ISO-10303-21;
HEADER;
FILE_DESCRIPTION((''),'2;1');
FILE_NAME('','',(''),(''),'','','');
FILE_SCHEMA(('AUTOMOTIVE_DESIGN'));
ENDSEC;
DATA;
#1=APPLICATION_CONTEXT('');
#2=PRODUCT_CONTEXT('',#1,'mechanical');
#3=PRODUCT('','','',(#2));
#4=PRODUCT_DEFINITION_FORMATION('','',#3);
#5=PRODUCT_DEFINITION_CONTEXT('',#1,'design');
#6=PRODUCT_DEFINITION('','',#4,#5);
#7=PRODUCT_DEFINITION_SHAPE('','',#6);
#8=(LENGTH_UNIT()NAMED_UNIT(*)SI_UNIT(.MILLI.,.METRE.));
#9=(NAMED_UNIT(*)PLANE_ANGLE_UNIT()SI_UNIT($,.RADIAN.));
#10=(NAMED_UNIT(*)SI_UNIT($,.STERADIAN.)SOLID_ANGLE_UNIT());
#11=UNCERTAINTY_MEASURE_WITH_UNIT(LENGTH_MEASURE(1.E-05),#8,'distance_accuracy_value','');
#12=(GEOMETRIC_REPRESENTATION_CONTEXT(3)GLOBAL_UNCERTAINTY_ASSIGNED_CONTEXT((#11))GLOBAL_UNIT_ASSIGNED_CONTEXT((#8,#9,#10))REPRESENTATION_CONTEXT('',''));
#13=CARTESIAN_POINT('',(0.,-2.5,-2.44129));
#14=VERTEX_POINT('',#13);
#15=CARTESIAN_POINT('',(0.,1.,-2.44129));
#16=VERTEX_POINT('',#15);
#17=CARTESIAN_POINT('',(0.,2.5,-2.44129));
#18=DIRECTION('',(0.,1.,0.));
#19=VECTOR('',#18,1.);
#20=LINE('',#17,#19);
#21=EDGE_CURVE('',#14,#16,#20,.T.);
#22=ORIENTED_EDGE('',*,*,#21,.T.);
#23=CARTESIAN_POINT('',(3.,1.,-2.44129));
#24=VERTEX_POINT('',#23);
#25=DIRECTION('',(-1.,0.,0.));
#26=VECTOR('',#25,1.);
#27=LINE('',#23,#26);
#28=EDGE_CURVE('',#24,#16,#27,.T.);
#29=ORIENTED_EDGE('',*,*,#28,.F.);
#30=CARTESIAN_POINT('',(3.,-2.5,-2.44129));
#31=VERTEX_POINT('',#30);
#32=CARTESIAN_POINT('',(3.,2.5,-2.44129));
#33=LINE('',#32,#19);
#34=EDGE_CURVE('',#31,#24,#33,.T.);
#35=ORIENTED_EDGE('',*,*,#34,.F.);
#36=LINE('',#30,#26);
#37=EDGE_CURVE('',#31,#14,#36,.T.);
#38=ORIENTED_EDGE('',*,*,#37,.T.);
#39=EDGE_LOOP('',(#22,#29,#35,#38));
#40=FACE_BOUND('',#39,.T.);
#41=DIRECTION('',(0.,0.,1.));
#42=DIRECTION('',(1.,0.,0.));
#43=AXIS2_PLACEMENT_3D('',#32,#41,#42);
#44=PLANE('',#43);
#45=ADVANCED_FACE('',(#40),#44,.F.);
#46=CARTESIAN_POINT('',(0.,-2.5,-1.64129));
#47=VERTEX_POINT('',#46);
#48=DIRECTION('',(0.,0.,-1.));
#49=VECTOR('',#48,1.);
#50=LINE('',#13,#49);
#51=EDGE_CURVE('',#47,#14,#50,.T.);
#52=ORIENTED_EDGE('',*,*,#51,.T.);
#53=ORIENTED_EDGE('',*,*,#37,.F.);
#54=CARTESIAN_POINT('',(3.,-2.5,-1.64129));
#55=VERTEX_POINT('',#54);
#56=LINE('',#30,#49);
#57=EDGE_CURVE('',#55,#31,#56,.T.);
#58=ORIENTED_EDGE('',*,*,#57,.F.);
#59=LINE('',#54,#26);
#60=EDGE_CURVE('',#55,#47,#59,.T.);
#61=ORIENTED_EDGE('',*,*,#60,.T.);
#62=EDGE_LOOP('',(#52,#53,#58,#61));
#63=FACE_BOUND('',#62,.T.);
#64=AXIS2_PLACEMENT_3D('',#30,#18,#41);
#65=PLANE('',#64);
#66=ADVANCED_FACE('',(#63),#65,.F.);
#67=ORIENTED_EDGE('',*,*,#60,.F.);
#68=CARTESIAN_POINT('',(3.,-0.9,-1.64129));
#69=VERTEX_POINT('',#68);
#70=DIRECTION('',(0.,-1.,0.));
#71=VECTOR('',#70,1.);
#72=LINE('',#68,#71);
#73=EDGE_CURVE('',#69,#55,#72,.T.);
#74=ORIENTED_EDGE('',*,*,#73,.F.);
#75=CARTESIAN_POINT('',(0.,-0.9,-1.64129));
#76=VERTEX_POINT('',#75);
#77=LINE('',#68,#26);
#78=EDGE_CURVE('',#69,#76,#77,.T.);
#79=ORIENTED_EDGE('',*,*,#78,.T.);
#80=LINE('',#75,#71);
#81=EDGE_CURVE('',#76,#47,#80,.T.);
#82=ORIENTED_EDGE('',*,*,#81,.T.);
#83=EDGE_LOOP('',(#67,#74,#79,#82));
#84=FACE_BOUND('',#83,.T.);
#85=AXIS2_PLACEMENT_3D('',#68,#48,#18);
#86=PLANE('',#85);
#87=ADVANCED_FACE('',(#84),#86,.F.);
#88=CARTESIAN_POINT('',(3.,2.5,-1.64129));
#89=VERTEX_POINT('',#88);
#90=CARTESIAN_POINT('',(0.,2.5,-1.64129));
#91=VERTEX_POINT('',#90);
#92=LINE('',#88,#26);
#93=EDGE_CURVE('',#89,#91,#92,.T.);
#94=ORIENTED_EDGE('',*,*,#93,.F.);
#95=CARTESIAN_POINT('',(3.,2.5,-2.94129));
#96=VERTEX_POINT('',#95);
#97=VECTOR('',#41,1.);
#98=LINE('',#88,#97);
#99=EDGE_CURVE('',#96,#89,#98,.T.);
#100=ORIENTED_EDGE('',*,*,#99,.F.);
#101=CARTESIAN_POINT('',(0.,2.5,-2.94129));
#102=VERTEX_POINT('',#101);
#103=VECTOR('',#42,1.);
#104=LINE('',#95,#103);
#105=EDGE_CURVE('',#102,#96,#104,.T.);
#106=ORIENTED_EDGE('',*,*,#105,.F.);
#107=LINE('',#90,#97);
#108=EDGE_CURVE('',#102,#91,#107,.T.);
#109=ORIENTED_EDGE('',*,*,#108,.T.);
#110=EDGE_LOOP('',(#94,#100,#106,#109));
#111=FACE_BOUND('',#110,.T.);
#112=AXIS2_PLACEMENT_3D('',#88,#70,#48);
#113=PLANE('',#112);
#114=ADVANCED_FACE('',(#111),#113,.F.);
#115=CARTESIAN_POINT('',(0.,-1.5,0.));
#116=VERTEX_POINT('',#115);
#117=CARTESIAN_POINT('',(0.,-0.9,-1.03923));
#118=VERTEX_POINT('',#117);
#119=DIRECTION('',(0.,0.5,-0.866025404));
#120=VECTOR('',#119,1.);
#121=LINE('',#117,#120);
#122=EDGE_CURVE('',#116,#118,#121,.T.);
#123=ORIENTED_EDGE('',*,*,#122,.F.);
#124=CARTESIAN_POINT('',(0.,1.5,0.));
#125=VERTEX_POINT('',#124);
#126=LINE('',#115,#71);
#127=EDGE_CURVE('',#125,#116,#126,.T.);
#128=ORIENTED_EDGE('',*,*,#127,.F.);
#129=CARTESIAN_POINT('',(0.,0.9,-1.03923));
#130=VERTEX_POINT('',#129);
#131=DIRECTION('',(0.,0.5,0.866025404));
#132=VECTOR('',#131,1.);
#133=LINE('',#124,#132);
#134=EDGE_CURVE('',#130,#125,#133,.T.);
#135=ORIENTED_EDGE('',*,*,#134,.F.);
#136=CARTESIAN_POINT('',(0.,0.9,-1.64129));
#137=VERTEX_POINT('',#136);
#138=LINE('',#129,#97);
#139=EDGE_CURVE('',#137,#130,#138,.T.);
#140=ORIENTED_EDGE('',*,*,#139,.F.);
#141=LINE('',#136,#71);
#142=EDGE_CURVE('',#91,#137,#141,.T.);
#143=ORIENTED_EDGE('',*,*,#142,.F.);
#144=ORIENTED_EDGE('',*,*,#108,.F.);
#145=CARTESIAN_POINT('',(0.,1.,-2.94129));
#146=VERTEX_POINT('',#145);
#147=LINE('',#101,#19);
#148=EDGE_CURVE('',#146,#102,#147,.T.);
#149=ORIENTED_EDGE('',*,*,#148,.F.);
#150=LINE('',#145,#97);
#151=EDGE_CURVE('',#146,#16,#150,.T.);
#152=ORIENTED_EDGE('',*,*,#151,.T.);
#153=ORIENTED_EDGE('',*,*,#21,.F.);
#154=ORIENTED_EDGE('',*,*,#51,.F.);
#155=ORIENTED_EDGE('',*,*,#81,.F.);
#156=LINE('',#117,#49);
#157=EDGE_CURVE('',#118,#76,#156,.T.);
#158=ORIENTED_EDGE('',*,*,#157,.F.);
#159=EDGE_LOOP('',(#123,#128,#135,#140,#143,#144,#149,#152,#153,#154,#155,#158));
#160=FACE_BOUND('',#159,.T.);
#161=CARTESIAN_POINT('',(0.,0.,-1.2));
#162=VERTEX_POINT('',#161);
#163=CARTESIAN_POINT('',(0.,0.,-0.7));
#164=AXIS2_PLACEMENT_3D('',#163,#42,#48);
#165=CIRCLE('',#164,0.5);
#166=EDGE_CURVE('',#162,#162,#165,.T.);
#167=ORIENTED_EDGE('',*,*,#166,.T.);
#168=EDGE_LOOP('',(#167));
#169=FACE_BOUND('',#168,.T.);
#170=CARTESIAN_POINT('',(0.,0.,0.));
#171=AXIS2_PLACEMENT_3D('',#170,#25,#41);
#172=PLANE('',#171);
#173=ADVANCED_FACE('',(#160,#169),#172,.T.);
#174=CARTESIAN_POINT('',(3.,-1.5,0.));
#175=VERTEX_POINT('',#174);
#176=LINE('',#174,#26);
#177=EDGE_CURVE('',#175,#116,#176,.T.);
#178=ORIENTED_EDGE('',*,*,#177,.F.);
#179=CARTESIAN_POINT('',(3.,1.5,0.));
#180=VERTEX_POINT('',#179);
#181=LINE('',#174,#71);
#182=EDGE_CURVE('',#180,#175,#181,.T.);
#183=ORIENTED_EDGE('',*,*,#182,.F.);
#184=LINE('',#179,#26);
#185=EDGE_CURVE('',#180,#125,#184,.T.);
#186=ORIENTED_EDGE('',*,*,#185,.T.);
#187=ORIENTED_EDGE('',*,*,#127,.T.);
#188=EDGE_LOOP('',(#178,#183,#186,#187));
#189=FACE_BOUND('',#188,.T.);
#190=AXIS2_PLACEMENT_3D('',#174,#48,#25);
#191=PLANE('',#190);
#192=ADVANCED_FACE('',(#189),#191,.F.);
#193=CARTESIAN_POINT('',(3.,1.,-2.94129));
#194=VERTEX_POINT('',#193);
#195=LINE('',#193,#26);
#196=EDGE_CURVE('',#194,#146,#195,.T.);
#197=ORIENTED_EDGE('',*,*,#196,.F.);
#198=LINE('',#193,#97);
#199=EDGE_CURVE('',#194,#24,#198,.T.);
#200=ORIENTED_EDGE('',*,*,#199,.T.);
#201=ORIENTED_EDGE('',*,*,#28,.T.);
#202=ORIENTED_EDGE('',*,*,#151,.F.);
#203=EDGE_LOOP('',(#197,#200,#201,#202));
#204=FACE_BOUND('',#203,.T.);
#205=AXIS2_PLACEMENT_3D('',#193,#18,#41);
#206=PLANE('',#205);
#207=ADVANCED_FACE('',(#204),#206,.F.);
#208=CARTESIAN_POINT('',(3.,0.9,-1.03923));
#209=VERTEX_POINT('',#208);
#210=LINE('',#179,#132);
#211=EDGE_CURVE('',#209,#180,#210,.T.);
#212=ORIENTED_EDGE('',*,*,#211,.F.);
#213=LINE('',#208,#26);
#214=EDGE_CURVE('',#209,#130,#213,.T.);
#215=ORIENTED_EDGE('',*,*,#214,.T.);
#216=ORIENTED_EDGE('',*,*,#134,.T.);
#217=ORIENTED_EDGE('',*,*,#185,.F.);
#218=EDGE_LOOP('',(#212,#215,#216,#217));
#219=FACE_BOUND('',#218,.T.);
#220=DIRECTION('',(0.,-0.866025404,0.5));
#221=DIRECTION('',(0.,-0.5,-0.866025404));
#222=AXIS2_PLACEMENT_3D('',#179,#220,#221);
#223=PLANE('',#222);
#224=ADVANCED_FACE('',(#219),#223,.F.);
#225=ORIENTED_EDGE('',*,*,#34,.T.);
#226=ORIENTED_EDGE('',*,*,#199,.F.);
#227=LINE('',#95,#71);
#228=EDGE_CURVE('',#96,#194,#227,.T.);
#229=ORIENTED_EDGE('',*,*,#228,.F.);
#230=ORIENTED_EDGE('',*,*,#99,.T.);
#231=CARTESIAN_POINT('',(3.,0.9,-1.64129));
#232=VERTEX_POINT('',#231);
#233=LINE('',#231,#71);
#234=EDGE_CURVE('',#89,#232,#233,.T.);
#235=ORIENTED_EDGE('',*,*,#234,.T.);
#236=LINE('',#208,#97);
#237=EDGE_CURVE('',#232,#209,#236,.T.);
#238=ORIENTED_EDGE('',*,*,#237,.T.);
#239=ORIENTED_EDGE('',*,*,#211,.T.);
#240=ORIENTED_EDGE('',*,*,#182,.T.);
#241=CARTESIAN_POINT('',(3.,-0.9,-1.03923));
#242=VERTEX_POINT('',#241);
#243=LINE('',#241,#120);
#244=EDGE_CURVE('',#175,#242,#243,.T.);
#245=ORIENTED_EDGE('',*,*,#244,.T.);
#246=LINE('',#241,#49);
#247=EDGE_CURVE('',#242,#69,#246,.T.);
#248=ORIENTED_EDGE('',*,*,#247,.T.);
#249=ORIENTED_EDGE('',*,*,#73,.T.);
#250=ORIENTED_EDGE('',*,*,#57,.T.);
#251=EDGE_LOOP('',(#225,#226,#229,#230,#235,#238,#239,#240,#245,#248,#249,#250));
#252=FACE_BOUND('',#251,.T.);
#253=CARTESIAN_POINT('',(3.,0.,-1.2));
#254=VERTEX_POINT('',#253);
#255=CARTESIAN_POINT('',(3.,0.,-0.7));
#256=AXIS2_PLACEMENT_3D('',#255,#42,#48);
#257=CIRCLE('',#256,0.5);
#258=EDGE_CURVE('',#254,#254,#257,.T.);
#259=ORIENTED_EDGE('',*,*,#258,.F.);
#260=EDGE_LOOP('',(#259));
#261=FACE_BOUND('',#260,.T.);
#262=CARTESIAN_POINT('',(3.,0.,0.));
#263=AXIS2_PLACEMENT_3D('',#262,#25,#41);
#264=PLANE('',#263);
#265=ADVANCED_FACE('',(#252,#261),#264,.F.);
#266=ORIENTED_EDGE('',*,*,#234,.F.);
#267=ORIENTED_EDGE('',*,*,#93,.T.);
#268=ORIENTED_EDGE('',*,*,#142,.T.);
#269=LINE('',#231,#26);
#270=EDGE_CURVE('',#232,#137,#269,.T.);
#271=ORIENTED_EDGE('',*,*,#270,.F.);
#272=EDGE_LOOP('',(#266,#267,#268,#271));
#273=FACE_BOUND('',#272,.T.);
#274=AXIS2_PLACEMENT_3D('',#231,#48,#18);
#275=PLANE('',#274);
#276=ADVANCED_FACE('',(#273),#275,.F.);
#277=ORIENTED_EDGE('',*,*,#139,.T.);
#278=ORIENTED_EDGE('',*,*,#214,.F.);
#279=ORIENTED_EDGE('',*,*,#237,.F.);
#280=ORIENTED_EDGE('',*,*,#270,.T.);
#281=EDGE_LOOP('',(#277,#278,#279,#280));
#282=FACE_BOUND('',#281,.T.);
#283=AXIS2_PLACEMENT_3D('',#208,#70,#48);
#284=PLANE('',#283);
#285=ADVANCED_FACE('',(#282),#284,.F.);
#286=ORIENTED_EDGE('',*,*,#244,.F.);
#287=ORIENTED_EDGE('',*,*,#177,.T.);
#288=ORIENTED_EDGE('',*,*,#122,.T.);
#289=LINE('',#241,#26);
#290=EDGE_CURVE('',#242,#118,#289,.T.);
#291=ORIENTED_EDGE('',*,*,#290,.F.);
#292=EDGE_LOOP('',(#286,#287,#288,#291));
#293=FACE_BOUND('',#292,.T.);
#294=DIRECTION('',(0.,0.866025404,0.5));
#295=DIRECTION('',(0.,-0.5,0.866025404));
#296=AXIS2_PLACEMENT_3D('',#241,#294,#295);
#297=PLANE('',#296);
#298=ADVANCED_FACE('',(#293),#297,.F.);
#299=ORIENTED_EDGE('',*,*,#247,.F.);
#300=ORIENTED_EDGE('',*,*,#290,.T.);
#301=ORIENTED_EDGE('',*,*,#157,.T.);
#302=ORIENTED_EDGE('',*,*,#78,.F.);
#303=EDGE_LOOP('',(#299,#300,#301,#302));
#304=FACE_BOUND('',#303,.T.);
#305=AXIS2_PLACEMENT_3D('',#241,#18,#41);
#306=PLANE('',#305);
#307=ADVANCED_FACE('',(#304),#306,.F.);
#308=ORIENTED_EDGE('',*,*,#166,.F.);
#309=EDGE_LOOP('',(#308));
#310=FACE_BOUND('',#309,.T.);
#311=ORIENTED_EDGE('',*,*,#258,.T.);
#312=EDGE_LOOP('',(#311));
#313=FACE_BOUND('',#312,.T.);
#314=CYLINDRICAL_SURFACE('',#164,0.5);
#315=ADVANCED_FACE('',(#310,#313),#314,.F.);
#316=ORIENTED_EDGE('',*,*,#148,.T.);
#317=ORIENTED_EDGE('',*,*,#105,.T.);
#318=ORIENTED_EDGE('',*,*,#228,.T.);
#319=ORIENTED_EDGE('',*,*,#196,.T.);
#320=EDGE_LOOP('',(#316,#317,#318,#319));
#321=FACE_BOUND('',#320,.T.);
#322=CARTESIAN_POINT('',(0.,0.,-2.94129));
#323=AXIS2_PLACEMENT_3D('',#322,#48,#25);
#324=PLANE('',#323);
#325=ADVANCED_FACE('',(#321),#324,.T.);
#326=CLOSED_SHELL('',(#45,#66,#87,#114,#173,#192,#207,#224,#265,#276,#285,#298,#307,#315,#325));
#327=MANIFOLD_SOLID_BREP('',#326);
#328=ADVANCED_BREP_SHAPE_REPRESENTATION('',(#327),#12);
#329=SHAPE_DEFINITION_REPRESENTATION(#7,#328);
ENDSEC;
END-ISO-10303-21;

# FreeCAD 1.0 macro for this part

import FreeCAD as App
import Part
import Sketcher
from FreeCAD import Vector
Q = App.Units.Quantity


def add_polygon(sketch, points):
    """Adds a closed chain of lines whose ends are joined by coincident constraints."""
    first, n = sketch.GeometryCount, len(points)
    for a, b in zip(points, points[1:] + points[:1]):
        sketch.addGeometry(Part.LineSegment(App.Vector(*a, 0), App.Vector(*b, 0)), False)
    for i in range(n):
        sketch.addConstraint(Sketcher.Constraint("Coincident", first + i, 2, first + (i + 1) % n, 1))

doc = App.newDocument("Part")
body = doc.addObject("PartDesign::Body", "Body")

sketch1 = body.newObject("Sketcher::SketchObject", "Sketch")
sketch1.AttachmentSupport = (doc.getObject("YZ_Plane"), [""])
sketch1.MapMode = "FlatFace"
add_polygon(sketch1, [(1.5, 0), (-1.5, 0), (-0.9, -1), (-0.9, -1.6), (-2.5, -1.6), (-2.5, -2.4), (2.5, -2.4), (2.5, -1.6), (0.9, -1.6), (0.9, -1)])
sketch1.addConstraint([
    Sketcher.Constraint("Horizontal", 0),
    Sketcher.Constraint("Vertical", 2),
    Sketcher.Constraint("Horizontal", 3),
    Sketcher.Constraint("Vertical", 4),
    Sketcher.Constraint("Horizontal", 5),
    Sketcher.Constraint("Vertical", 6),
    Sketcher.Constraint("Horizontal", 7),
    Sketcher.Constraint("Vertical", 8),
    Sketcher.Constraint("Symmetric", 0, 2, 9, 2, -1, 1),
    Sketcher.Constraint("Symmetric", 3, 2, 6, 2, -2),
    Sketcher.Constraint("Symmetric", 1, 2, 8, 2, -2),
    Sketcher.Constraint("DistanceX", 0, 2, 0, 1, Q("3 mm")),
    Sketcher.Constraint("DistanceX", 5, 1, 5, 2, Q("5 mm")),
    Sketcher.Constraint("Angle", 1, Q("-60 deg")),
    Sketcher.Constraint("DistanceX", 3, 2, 3, 1, Q("1.6 mm")),
    Sketcher.Constraint("DistanceY", 4, 2, 4, 1, Q("0.8 mm")),
    Sketcher.Constraint("DistanceY", 2, 2, 2, 1, Q("0.60206 mm")),
])
pad1 = body.newObject("PartDesign::Pad", "Pad")
pad1.Profile = sketch1
pad1.Length = 3

sketch2 = body.newObject("Sketcher::SketchObject", "Sketch001")
sketch2.AttachmentSupport = (doc.getObject("YZ_Plane"), [""])
sketch2.MapMode = "FlatFace"
sketch2.AttachmentOffset = App.Placement(Vector(0, 0, 3), App.Rotation())
sketch2.addGeometry(Part.Circle(Vector(0, -0.7, 0), Vector(0, 0, 1), 0.5), False)
sketch2.addConstraint([
    Sketcher.Constraint("PointOnObject", 0, 3, -2),
    Sketcher.Constraint("Diameter", 0, Q("1 mm")),
    Sketcher.Constraint("DistanceY", 0, 3, -1, 1, Q("0.7 mm")),
])
pocket1 = body.newObject("PartDesign::Pocket", "Pocket")
pocket1.Profile = sketch2
pocket1.Type = "ThroughAll"

sketch3 = body.newObject("Sketcher::SketchObject", "Sketch002")
sketch3.AttachmentSupport = (doc.getObject("XY_Plane"), [""])
sketch3.MapMode = "FlatFace"
sketch3.AttachmentOffset = App.Placement(Vector(0, 0, -2.44129), App.Rotation())
add_polygon(sketch3, [(3, 2.5), (3, 1), (0, 1), (0, 2.5)])
sketch3.addConstraint([
    Sketcher.Constraint("Vertical", 0),
    Sketcher.Constraint("Horizontal", 1),
    Sketcher.Constraint("Vertical", 2),
    Sketcher.Constraint("Horizontal", 3),
    Sketcher.Constraint("PointOnObject", 1, 2, -2),
    Sketcher.Constraint("DistanceX", 1, 2, 1, 1, Q("3 mm")),
    Sketcher.Constraint("DistanceY", 0, 2, 0, 1, Q("1.5 mm")),
    Sketcher.Constraint("DistanceY", -1, 1, 0, 2, Q("1 mm")),
])
pad2 = body.newObject("PartDesign::Pad", "Pad001")
pad2.Profile = sketch3
pad2.Length = 0.5
pad2.Reversed = True

doc.recompute()
